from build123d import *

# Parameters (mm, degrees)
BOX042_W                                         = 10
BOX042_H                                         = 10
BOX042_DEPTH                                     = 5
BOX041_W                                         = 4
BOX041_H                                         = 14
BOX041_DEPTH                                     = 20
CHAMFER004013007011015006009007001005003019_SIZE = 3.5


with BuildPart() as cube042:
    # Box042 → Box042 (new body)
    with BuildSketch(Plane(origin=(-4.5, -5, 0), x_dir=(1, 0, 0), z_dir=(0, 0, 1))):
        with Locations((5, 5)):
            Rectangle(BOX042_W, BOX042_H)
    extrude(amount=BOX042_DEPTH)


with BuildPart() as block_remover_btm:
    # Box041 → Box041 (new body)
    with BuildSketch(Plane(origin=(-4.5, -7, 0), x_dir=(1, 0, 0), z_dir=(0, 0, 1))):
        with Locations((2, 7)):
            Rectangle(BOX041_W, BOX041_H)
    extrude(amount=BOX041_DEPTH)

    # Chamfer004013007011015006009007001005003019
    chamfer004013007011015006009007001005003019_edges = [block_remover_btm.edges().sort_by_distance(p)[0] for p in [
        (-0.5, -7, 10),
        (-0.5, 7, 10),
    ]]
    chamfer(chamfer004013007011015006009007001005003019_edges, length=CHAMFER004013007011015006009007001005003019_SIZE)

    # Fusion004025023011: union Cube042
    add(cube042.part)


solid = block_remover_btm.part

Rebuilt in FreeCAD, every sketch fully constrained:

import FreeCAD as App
import Part
import Sketcher
from FreeCAD import Vector
Q = App.Units.Quantity


def edges_at(feature, points):
    """Names of the edges that pass closest to the given points."""
    edges = feature.Shape.Edges
    near = lambda p: min(range(len(edges)), key=lambda i: edges[i].distToShape(Part.Vertex(*p))[0])
    return sorted({f"Edge{near(p) + 1}" for p in points})


def add_polygon(sketch, points):
    """Adds a closed chain of lines whose ends are joined by coincident constraints."""
    first, n = sketch.GeometryCount, len(points)
    for a, b in zip(points, points[1:] + points[:1]):
        sketch.addGeometry(Part.LineSegment(App.Vector(*a, 0), App.Vector(*b, 0)), False)
    for i in range(n):
        sketch.addConstraint(Sketcher.Constraint("Coincident", first + i, 2, first + (i + 1) % n, 1))

doc = App.newDocument("Part")
body = doc.addObject("PartDesign::Body", "Body")

# Sketch on XY plane
sketch1 = doc.addObject("Sketcher::SketchObject", "Sketch")
body.addObject(sketch1)
sketch1.AttachmentSupport = (doc.XY_Plane, [""])
sketch1.MapMode = "FlatFace"
add_polygon(sketch1, [(-4, 5), (-4, -5), (6, -5), (6, 5)])  # lines 0-3
sketch1.addConstraint([
    Sketcher.Constraint("Vertical", 0),
    Sketcher.Constraint("Horizontal", 1),
    Sketcher.Constraint("Vertical", 2),
    Sketcher.Constraint("Horizontal", 3),
    Sketcher.Constraint("Equal", 3, 0),
    Sketcher.Constraint("DistanceX", 1, 1, 1, 2, Q("10 mm")),
    Sketcher.Constraint("DistanceY", 0, 2, -1, 1, Q("5 mm")),
    Sketcher.Constraint("DistanceX", 0, 2, -1, 1, Q("4.5 mm")),
])
pad1 = doc.addObject("PartDesign::Pad", "Pad")
body.addObject(pad1)
pad1.Profile = sketch1
pad1.Length = 5
body2 = doc.addObject("PartDesign::Body", "Body001")

# Sketch on XY plane
sketch2 = doc.addObject("Sketcher::SketchObject", "Sketch001")
body2.addObject(sketch2)
sketch2.AttachmentSupport = (doc.getObject("XY_Plane001"), [""])
sketch2.MapMode = "FlatFace"
add_polygon(sketch2, [(-4.5, 7), (-4.5, -7), (-0.5, -7), (-0.5, 7)])  # lines 0-3
sketch2.addConstraint([
    Sketcher.Constraint("Vertical", 0),
    Sketcher.Constraint("Horizontal", 1),
    Sketcher.Constraint("Vertical", 2),
    Sketcher.Constraint("Horizontal", 3),
    Sketcher.Constraint("DistanceX", 1, 1, 1, 2, Q("4 mm")),
    Sketcher.Constraint("DistanceY", 0, 2, 0, 1, Q("14 mm")),
    Sketcher.Constraint("DistanceY", 0, 2, -1, 1, Q("7 mm")),
    Sketcher.Constraint("DistanceX", 0, 2, -1, 1, Q("4.5 mm")),
])
pad2 = doc.addObject("PartDesign::Pad", "Pad001")
body2.addObject(pad2)
pad2.Profile = sketch2
pad2.Length = 20
doc.recompute()

chamfer = doc.addObject("PartDesign::Chamfer", "Chamfer")
body2.addObject(chamfer)
chamfer.Base = (pad2, edges_at(pad2, [(-0.5, -7, 10), (-0.5, 7, 10)]))
chamfer.Size = 3.5
doc.recompute()

boolean = doc.addObject("PartDesign::Boolean", "Boolean")
body2.addObject(boolean)
boolean.Type = "Fuse"
boolean.addObjects([body])

doc.recompute()
